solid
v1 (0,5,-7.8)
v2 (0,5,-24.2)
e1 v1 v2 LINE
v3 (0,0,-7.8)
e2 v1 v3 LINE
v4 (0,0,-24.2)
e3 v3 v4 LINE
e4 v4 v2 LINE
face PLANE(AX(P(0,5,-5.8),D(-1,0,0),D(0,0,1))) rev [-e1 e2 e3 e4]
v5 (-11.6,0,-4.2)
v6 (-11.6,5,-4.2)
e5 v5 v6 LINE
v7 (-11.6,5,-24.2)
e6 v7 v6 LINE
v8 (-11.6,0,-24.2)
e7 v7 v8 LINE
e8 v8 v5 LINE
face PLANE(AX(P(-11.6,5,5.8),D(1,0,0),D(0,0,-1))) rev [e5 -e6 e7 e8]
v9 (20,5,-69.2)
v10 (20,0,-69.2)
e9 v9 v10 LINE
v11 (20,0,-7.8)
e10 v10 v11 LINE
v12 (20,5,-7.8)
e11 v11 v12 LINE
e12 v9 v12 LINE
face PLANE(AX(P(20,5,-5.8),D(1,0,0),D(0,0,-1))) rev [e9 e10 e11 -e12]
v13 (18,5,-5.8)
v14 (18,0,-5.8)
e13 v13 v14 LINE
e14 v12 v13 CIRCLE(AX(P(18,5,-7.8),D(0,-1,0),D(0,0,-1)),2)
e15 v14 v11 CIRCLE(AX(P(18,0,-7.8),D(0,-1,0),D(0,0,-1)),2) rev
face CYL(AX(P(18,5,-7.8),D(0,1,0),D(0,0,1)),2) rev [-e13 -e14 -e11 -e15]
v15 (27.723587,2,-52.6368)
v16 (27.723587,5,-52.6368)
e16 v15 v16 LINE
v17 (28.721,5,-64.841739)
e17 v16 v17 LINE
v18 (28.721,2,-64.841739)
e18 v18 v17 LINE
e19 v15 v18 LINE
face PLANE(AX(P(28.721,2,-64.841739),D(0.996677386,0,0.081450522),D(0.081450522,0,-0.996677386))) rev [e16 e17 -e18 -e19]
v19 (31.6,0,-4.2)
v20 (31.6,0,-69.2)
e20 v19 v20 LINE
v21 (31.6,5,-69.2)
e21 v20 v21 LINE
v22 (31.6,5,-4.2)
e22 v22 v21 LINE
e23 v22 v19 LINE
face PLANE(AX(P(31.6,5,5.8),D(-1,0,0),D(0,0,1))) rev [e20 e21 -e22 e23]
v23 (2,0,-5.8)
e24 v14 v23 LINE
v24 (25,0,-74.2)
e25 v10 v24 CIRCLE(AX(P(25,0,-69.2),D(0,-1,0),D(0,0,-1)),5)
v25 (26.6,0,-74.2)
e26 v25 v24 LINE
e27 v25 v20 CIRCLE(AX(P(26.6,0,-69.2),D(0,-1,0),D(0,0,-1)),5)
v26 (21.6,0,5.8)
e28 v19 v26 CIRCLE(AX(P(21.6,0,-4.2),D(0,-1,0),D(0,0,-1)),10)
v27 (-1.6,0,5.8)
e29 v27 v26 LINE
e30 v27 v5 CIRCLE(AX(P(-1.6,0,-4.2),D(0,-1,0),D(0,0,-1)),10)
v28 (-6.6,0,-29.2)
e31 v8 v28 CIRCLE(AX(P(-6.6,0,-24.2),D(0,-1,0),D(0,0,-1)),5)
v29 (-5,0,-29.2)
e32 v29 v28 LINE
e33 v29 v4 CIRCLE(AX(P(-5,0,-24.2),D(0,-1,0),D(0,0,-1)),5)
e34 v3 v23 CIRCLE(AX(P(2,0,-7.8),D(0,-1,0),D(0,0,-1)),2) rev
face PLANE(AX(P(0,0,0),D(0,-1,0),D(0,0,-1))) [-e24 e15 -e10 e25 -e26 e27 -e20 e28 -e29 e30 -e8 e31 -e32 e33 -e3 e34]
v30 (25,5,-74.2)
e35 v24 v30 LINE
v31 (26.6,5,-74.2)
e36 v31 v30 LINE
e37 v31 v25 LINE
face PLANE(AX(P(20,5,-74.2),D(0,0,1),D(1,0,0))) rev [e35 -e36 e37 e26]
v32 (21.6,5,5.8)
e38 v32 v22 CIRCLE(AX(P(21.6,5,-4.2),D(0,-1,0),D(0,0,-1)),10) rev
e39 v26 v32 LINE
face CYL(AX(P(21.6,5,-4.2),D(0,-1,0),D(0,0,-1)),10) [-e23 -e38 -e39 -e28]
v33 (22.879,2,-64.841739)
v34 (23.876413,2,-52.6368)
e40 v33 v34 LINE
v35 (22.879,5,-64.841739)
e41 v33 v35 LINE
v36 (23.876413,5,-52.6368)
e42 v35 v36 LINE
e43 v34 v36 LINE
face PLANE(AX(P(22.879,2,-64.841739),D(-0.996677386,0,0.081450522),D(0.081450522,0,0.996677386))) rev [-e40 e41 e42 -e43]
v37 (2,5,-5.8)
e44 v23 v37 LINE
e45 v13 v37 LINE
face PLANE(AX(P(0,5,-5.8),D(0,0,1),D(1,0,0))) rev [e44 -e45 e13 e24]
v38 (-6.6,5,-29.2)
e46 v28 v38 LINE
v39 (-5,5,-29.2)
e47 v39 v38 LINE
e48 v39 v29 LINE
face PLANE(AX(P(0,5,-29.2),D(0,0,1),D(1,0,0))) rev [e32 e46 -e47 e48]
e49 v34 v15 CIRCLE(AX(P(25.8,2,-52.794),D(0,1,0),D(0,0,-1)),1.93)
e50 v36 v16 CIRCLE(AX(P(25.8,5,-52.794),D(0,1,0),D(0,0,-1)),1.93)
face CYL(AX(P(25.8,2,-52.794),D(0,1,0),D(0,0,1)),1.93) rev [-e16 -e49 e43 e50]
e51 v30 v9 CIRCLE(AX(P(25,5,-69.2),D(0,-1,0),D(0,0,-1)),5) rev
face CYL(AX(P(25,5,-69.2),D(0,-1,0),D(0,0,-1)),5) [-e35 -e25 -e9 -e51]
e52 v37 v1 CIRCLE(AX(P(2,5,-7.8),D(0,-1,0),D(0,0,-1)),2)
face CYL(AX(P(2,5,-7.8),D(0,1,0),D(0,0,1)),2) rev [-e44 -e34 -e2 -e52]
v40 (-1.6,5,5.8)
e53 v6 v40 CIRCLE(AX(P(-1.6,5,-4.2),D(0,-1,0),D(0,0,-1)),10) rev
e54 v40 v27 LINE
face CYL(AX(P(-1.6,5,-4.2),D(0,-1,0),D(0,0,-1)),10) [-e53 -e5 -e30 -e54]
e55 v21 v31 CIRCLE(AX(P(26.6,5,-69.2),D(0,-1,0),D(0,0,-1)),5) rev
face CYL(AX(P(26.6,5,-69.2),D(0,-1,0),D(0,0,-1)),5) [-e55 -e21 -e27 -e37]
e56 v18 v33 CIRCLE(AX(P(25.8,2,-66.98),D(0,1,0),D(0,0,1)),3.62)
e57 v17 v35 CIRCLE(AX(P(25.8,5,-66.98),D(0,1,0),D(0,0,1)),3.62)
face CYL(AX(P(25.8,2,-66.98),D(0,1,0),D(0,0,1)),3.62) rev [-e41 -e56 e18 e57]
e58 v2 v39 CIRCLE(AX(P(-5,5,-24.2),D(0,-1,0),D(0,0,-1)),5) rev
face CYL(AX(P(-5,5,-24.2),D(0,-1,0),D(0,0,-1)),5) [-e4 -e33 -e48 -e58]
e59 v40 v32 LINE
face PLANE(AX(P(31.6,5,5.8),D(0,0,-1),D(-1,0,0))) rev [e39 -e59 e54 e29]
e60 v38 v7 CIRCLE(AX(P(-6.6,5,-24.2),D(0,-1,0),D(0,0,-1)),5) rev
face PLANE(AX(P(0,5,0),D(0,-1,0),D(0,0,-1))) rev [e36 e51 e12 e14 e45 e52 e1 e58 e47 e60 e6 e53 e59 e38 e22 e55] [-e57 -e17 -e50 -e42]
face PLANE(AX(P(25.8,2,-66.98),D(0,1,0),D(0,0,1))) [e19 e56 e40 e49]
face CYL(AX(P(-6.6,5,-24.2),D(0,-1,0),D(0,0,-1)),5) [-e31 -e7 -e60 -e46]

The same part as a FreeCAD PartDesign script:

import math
import FreeCAD as App
import Part
import Sketcher
Q = App.Units.Quantity


def edges_at(feature, points):
    """Names of the edges that pass closest to the given points."""
    edges = feature.Shape.Edges
    near = lambda p: min(range(len(edges)), key=lambda i: edges[i].distToShape(Part.Vertex(*p))[0])
    return sorted({f"Edge{near(p) + 1}" for p in points})


def add_polygon(sketch, points):
    """Adds a closed chain of lines whose ends are joined by coincident constraints."""
    first, n = sketch.GeometryCount, len(points)
    for a, b in zip(points, points[1:] + points[:1]):
        sketch.addGeometry(Part.LineSegment(App.Vector(*a, 0), App.Vector(*b, 0)), False)
    for i in range(n):
        sketch.addConstraint(Sketcher.Constraint("Coincident", first + i, 2, first + (i + 1) % n, 1))

doc = App.newDocument("Part")
body = doc.addObject("PartDesign::Body", "Body")

sketch1 = body.newObject("Sketcher::SketchObject", "Sketch")
sketch1.AttachmentSupport = (doc.getObject("XZ_Plane"), [""])
sketch1.MapMode = "FlatFace"
add_polygon(sketch1, [(20, -5.8), (0, -5.8), (0, -29.2), (-11.6, -29.2), (-11.6, 5.8), (31.6, 5.8), (31.6, -74.2), (20, -74.2)])
sketch1.addConstraint([
    Sketcher.Constraint("Horizontal", 0),
    Sketcher.Constraint("Vertical", 1),
    Sketcher.Constraint("Horizontal", 2),
    Sketcher.Constraint("Vertical", 3),
    Sketcher.Constraint("Horizontal", 4),
    Sketcher.Constraint("Vertical", 5),
    Sketcher.Constraint("Horizontal", 6),
    Sketcher.Constraint("Vertical", 7),
    Sketcher.Constraint("PointOnObject", 0, 2, -2),
    Sketcher.Constraint("Equal", 2, 6),
    Sketcher.Constraint("DistanceX", 0, 2, 0, 1, Q("20 mm")),
    Sketcher.Constraint("DistanceY", 3, 1, 3, 2, Q("35 mm")),
    Sketcher.Constraint("DistanceY", 5, 2, 5, 1, Q("80 mm")),
    Sketcher.Constraint("DistanceX", 2, 2, 2, 1, Q("11.6 mm")),
    Sketcher.Constraint("DistanceY", 1, 2, 1, 1, Q("23.4 mm")),
    Sketcher.Constraint("DistanceY", 0, 2, -1, 1, Q("5.8 mm")),
])
pad1 = body.newObject("PartDesign::Pad", "Pad")
pad1.Profile = sketch1
pad1.Length = 5
pad1.Reversed = True

sketch2 = body.newObject("Sketcher::SketchObject", "Sketch001")
sketch2.AttachmentSupport = (doc.getObject("XZ_Plane"), [""])
sketch2.MapMode = "FlatFace"
sketch2.AttachmentOffset = App.Placement(App.Vector(0, 0, -5), App.Rotation())
sketch2.addGeometry([
    Part.LineSegment(App.Vector(27.723587, -52.6368, 0), App.Vector(28.721, -64.841739, 0)),
    Part.ArcOfCircle(Part.Circle(App.Vector(25.8, -66.98, 0), App.Vector(0, 0, 1), 3.62), math.radians(143.794739), math.radians(396.205261)),
    Part.LineSegment(App.Vector(22.879, -64.841739, 0), App.Vector(23.876413, -52.6368, 0)),
    Part.ArcOfCircle(Part.Circle(App.Vector(25.8, -52.794, 0), App.Vector(0, 0, 1), 1.93), math.radians(4.671947), math.radians(175.328053)),
], False)
sketch2.addConstraint([
    Sketcher.Constraint("Coincident", 0, 2, 1, 2),
    Sketcher.Constraint("Coincident", 1, 1, 2, 1),
    Sketcher.Constraint("Tangent", 2, 2, 3, 2),
    Sketcher.Constraint("Tangent", 3, 1, 0, 1),
    Sketcher.Constraint("Horizontal", 0, 2, 1, 1),
    Sketcher.Constraint("Horizontal", 2, 2, 3, 1),
    Sketcher.Constraint("Radius", 1, Q("3.62 mm")),
    Sketcher.Constraint("Radius", 3, Q("1.93 mm")),
    Sketcher.Constraint("DistanceX", -1, 1, 1, 3, Q("25.8 mm")),
    Sketcher.Constraint("DistanceY", 1, 3, -1, 1, Q("66.98 mm")),
    Sketcher.Constraint("DistanceY", 3, 3, -1, 1, Q("52.794 mm")),
    Sketcher.Constraint("DistanceX", -1, 1, 0, 2, Q("28.721 mm")),
])
pocket1 = body.newObject("PartDesign::Pocket", "Pocket")
pocket1.Profile = sketch2
pocket1.Length = 3
pocket1.Reversed = True
doc.recompute()

fillet = body.newObject("PartDesign::Fillet", "Fillet")
fillet.Base = (pocket1, edges_at(pocket1, [(20, 2.5, -74.2), (31.6, 2.5, -74.2)]))
fillet.Radius = 5
doc.recompute()

fillet2 = body.newObject("PartDesign::Fillet", "Fillet001")
fillet2.Base = (fillet, edges_at(fillet, [(31.6, 2.5, 5.8), (-11.6, 2.5, 5.8)]))
fillet2.Radius = 10
doc.recompute()

fillet3 = body.newObject("PartDesign::Fillet", "Fillet002")
fillet3.Base = (fillet2, edges_at(fillet2, [(-11.6, 2.5, -29.2), (0, 2.5, -29.2)]))
fillet3.Radius = 5
doc.recompute()

fillet4 = body.newObject("PartDesign::Fillet", "Fillet003")
fillet4.Base = (fillet3, edges_at(fillet3, [(0, 2.5, -5.8), (20, 2.5, -5.8)]))
fillet4.Radius = 2

doc.recompute()
